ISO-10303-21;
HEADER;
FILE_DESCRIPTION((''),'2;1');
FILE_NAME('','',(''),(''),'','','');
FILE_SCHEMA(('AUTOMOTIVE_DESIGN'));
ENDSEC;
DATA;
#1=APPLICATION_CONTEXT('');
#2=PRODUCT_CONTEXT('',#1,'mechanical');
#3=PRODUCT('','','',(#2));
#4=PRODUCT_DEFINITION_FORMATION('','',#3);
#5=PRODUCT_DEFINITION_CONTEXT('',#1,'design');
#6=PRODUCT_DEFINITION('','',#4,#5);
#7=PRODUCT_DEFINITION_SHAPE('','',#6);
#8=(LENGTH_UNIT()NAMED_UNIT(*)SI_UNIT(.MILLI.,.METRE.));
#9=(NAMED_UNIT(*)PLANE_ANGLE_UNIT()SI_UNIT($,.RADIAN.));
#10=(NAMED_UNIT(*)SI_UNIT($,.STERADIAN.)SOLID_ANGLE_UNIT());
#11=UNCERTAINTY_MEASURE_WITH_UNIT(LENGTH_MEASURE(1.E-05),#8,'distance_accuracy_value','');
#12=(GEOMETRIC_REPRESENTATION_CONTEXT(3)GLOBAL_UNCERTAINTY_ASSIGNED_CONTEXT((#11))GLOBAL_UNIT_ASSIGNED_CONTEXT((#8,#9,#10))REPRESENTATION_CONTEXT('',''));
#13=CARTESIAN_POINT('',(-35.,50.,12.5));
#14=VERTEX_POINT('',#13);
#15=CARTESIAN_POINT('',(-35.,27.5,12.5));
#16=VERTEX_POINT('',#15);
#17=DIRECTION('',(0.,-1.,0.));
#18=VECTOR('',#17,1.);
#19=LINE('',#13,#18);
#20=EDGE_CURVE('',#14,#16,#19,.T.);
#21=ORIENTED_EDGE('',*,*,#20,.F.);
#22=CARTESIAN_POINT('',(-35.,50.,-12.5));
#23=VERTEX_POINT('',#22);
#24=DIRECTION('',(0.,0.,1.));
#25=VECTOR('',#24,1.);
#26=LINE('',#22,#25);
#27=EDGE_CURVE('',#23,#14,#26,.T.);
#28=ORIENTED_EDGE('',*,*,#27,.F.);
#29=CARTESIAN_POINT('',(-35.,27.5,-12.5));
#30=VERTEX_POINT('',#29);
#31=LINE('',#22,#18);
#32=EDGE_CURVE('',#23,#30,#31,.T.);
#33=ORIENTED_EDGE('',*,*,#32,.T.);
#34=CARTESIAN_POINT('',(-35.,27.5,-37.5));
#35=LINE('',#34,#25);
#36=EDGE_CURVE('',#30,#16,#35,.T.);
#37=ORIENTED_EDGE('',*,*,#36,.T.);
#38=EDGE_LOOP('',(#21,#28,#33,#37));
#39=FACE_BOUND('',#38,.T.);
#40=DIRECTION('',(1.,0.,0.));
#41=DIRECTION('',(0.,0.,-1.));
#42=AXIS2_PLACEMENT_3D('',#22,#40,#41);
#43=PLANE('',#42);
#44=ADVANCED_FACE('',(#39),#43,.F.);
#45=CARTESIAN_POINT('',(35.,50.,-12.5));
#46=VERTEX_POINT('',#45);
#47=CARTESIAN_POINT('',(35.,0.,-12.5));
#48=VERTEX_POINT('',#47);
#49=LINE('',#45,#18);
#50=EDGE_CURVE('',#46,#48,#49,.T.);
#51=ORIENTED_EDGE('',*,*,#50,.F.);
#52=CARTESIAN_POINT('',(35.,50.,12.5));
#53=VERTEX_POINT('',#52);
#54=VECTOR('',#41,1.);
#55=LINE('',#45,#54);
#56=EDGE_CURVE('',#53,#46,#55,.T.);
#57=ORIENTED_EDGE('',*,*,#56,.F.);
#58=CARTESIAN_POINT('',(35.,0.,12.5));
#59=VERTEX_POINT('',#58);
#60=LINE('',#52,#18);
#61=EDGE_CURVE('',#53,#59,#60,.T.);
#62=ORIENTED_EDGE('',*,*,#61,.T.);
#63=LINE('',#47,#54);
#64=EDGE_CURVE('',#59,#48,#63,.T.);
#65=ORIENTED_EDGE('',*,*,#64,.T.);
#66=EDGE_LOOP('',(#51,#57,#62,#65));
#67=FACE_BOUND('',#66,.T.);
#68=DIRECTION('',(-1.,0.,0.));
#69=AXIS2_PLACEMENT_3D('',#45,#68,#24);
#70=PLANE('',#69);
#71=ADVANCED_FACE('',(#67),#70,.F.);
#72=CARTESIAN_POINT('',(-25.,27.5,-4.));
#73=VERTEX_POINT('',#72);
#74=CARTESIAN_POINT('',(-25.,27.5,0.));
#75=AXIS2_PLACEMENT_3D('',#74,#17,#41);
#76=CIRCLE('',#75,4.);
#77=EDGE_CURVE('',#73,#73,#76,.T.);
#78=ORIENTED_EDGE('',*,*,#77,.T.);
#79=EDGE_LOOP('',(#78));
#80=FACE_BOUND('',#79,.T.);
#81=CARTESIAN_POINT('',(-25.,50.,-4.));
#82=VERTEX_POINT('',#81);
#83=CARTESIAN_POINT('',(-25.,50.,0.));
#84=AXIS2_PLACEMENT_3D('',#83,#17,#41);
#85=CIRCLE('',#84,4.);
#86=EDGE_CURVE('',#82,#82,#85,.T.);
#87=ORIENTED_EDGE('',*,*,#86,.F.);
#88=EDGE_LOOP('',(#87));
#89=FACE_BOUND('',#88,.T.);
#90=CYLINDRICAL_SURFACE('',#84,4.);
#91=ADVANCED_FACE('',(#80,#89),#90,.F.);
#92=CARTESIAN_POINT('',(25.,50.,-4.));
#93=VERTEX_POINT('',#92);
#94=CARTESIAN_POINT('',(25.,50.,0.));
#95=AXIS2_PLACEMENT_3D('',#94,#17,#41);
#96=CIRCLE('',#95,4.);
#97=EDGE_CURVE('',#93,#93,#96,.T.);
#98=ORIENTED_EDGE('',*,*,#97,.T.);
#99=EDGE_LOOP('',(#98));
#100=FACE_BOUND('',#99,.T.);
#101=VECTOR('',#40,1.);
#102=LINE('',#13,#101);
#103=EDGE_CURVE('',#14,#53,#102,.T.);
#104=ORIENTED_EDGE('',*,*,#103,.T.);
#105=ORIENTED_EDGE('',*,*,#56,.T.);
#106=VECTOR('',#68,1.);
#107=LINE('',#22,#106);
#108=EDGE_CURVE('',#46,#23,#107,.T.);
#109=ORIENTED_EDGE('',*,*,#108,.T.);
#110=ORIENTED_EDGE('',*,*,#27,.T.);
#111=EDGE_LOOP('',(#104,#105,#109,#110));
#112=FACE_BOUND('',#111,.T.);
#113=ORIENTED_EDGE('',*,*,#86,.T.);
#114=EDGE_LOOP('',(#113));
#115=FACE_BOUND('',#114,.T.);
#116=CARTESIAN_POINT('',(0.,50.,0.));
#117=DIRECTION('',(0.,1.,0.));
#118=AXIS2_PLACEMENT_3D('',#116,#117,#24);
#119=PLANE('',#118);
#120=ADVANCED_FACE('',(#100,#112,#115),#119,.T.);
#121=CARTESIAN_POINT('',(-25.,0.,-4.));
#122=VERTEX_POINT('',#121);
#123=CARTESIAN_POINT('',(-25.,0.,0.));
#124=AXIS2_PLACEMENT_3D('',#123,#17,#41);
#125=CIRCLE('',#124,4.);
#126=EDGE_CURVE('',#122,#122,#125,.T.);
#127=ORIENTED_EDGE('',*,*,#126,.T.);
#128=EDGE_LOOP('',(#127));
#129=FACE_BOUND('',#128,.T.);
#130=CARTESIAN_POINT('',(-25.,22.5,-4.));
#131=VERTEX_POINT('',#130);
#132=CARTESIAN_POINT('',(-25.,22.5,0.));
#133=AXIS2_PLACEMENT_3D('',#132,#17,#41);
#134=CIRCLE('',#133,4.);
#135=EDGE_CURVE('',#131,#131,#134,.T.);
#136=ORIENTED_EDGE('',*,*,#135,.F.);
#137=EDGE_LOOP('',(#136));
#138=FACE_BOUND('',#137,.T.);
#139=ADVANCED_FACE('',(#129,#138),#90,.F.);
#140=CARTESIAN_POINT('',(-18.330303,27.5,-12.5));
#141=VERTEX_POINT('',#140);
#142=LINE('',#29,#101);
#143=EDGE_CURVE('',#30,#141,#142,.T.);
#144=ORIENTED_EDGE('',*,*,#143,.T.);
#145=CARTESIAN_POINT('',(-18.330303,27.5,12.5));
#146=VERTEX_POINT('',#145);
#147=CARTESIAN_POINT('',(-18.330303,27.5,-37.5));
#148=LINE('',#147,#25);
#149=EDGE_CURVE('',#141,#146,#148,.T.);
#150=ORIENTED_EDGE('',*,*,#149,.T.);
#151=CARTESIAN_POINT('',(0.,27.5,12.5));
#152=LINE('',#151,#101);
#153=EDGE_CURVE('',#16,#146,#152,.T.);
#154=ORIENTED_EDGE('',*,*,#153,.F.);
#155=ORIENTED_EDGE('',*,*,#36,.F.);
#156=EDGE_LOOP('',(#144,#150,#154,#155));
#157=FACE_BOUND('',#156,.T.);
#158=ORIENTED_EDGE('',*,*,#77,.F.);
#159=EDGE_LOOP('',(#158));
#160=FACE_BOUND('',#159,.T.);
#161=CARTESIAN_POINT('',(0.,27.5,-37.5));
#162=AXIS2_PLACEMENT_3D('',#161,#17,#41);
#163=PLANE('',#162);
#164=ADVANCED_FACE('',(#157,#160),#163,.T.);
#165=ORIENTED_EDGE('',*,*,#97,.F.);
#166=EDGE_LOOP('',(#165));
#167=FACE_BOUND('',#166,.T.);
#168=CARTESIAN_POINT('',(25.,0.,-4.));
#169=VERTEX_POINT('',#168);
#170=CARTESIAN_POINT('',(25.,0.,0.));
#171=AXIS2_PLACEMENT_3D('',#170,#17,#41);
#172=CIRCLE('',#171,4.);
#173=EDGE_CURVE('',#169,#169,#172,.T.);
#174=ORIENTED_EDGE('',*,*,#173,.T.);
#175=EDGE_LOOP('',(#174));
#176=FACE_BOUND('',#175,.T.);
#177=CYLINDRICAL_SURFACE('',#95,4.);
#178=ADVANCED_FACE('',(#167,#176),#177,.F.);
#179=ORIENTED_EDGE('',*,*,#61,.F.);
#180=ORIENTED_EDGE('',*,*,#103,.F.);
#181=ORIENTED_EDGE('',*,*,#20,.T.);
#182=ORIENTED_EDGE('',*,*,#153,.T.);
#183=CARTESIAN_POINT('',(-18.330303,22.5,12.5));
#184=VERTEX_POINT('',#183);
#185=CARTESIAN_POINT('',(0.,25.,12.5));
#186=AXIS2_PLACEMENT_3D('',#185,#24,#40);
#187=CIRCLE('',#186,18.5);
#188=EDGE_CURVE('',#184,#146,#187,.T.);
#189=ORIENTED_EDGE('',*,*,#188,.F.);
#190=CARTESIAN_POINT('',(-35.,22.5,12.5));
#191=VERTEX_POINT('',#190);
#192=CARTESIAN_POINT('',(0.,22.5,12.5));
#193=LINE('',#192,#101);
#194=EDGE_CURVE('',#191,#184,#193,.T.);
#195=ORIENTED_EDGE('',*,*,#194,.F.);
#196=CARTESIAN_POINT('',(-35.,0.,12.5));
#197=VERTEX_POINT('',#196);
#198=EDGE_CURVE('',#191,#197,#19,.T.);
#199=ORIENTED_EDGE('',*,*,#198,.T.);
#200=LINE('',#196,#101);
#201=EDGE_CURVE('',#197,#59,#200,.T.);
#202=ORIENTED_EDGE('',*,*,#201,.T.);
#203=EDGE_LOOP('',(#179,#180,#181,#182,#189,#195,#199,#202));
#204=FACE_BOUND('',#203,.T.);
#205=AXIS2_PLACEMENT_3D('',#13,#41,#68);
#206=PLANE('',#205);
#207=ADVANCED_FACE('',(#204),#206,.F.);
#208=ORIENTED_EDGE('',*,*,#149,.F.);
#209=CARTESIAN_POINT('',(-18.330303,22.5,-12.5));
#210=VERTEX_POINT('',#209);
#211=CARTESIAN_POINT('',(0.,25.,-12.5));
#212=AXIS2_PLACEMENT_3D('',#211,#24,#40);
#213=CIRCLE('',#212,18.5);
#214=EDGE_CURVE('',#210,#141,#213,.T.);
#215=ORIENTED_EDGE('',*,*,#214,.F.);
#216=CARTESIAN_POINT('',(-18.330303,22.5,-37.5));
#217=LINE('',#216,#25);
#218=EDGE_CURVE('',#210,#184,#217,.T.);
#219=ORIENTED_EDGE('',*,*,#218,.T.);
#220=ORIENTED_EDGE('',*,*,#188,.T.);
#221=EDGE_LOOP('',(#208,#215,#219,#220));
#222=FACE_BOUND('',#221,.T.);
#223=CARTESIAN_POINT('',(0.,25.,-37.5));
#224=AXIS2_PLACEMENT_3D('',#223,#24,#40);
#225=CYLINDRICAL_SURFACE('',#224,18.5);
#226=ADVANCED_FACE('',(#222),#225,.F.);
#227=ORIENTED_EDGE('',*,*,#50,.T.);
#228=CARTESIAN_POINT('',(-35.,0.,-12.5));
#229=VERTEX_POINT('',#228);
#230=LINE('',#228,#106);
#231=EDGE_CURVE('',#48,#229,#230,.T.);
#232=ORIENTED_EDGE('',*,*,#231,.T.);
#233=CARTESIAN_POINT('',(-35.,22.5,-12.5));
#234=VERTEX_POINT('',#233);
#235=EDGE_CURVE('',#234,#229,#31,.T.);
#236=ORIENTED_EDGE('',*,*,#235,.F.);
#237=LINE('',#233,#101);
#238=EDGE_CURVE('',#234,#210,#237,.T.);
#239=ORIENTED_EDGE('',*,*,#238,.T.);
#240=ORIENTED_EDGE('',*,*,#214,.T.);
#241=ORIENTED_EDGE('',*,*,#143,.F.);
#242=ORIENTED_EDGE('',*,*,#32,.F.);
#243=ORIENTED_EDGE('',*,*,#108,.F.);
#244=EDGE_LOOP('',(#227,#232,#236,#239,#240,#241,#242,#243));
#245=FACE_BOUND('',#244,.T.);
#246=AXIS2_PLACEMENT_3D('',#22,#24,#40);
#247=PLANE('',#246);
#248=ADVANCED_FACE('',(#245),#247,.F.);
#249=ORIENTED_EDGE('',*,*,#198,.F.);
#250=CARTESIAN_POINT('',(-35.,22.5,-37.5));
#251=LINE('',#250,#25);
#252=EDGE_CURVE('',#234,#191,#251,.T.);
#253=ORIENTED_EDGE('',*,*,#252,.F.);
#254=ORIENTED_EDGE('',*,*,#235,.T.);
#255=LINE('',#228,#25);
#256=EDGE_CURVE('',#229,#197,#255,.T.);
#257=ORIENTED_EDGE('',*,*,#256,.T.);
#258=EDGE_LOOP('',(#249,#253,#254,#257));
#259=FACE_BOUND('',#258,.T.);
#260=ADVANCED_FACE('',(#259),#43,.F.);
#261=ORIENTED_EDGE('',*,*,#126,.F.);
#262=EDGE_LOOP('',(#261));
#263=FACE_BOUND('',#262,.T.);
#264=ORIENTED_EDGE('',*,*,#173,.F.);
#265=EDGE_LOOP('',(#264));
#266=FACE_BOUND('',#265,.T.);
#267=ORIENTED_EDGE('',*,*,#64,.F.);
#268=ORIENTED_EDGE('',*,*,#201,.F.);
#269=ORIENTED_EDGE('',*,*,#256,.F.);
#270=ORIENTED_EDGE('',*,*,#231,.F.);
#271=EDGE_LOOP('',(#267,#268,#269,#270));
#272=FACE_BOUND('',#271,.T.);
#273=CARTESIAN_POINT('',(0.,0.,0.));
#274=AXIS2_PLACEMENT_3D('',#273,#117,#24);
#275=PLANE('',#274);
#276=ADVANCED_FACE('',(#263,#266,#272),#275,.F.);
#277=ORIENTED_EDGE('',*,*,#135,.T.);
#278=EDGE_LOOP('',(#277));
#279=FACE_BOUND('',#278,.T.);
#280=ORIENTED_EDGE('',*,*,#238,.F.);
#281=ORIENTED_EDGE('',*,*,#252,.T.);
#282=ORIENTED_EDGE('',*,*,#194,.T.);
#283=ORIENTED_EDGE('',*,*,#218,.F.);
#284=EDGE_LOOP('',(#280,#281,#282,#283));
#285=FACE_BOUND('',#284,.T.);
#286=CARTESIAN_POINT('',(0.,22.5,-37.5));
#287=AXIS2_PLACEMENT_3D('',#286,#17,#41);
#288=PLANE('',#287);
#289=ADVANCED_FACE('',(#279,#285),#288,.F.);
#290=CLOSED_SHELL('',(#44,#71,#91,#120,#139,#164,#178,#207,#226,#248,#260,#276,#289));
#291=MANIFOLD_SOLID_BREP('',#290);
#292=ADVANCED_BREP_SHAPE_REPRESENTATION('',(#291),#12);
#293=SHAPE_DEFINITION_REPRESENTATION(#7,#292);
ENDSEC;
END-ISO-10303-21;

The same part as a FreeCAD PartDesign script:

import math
import FreeCAD as App
import Part
import Sketcher
Q = App.Units.Quantity


def add_polygon(sketch, points):
    """Adds a closed chain of lines whose ends are joined by coincident constraints."""
    first, n = sketch.GeometryCount, len(points)
    for a, b in zip(points, points[1:] + points[:1]):
        sketch.addGeometry(Part.LineSegment(App.Vector(*a, 0), App.Vector(*b, 0)), False)
    for i in range(n):
        sketch.addConstraint(Sketcher.Constraint("Coincident", first + i, 2, first + (i + 1) % n, 1))

doc = App.newDocument("Part")
body = doc.addObject("PartDesign::Body", "Body")

# Sketch on XZ plane
sketch1 = body.newObject("Sketcher::SketchObject", "Sketch")
sketch1.AttachmentSupport = (doc.getObject("XZ_Plane"), [""])
sketch1.MapMode = "FlatFace"
add_polygon(sketch1, [(-35, -12.5), (-35, 12.5), (35, 12.5), (35, -12.5)])  # lines 0-3
sketch1.addConstraint([
    Sketcher.Constraint("Vertical", 0),
    Sketcher.Constraint("Horizontal", 1),
    Sketcher.Constraint("Vertical", 2),
    Sketcher.Constraint("Horizontal", 3),
    Sketcher.Constraint("Symmetric", 0, 2, 2, 2, -1, 1),
    Sketcher.Constraint("DistanceX", 1, 1, 1, 2, Q("70 mm")),
    Sketcher.Constraint("DistanceY", 0, 1, 0, 2, Q("25 mm")),
])
pad1 = body.newObject("PartDesign::Pad", "Pad")
pad1.Profile = sketch1
pad1.Length = 50
pad1.Reversed = True

# Sketch on XY plane
sketch2 = body.newObject("Sketcher::SketchObject", "Sketch001")
sketch2.AttachmentSupport = (doc.getObject("XY_Plane"), [""])
sketch2.MapMode = "FlatFace"
sketch2.AttachmentOffset = App.Placement(App.Vector(0, 0, 12.5), App.Rotation())
sketch2.addGeometry([
    Part.ArcOfCircle(Part.Circle(App.Vector(0, 25, 0), App.Vector(0, 0, 1), 18.5), math.radians(0), math.radians(172.233566)),  # 0
    Part.LineSegment(App.Vector(-18.330303, 27.5, 0), App.Vector(-35, 27.5, 0)),  # 1
    Part.LineSegment(App.Vector(-35, 27.5, 0), App.Vector(-35, 22.5, 0)),  # 2
    Part.LineSegment(App.Vector(-35, 22.5, 0), App.Vector(-18.330303, 22.5, 0)),  # 3
    Part.ArcOfCircle(Part.Circle(App.Vector(0, 25, 0), App.Vector(0, 0, 1), 18.5), math.radians(-172.233566), math.radians(0)),  # 4
], False)
sketch2.addConstraint([
    Sketcher.Constraint("Coincident", 0, 2, 1, 1),
    Sketcher.Constraint("Coincident", 1, 2, 2, 1),
    Sketcher.Constraint("Coincident", 2, 2, 3, 1),
    Sketcher.Constraint("Coincident", 3, 2, 4, 1),
    Sketcher.Constraint("Tangent", 4, 2, 0, 1),
    Sketcher.Constraint("Horizontal", 1),
    Sketcher.Constraint("Vertical", 2),
    Sketcher.Constraint("Horizontal", 3),
    Sketcher.Constraint("Equal", 0, 4),
    Sketcher.Constraint("PointOnObject", 0, 3, -2),
    Sketcher.Constraint("Horizontal", 0, 3, 4, 2),
    Sketcher.Constraint("Vertical", 0, 2, 3, 2),
    Sketcher.Constraint("Radius", 0, Q("18.5 mm")),
    Sketcher.Constraint("DistanceY", 2, 2, 2, 1, Q("5 mm")),
    Sketcher.Constraint("DistanceY", -1, 1, 0, 3, Q("25 mm")),
    Sketcher.Constraint("DistanceX", 1, 2, -1, 1, Q("35 mm")),
])
pocket1 = body.newObject("PartDesign::Pocket", "Pocket")
pocket1.Profile = sketch2
pocket1.Length = 50

# Sketch on XZ plane
sketch3 = body.newObject("Sketcher::SketchObject", "Sketch002")
sketch3.AttachmentSupport = (doc.getObject("XZ_Plane"), [""])
sketch3.MapMode = "FlatFace"
sketch3.addGeometry([
    Part.Circle(App.Vector(-25, 0, 0), App.Vector(0, 0, 1), 4),
    Part.Circle(App.Vector(25, 0, 0), App.Vector(0, 0, 1), 4),
], False)
sketch3.addConstraint([
    Sketcher.Constraint("Equal", 0, 1),
    Sketcher.Constraint("Symmetric", 0, 3, 1, 3, -1, 1),
    Sketcher.Constraint("PointOnObject", 0, 3, -1),
    Sketcher.Constraint("Diameter", 0, Q("8 mm")),
    Sketcher.Constraint("DistanceX", 0, 3, -1, 1, Q("25 mm")),
])
pocket2 = body.newObject("PartDesign::Pocket", "Pocket001")
pocket2.Profile = sketch3
pocket2.Type = "ThroughAll"

doc.recompute()
